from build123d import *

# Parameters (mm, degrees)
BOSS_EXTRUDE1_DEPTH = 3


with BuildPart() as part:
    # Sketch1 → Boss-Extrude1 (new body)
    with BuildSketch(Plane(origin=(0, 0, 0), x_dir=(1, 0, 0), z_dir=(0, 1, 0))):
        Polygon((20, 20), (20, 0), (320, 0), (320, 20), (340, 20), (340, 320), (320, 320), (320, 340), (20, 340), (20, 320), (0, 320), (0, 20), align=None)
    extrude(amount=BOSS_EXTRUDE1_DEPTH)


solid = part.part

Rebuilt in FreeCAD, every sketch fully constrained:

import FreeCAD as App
import Part
import Sketcher

doc = App.newDocument("Part")
params = doc.addObject("Spreadsheet::Sheet", "Params")
for row, (alias, value) in enumerate([
    ("sketch1_width", "300 mm"),
    ("sketch1_width2", "20 mm"),
    ("pad1_length", "3 mm"),
], start=1):
    params.set(f"A{row}", alias)
    params.set(f"B{row}", "=" + value)
    params.setAlias(f"B{row}", alias)

body = doc.addObject("PartDesign::Body", "Body")

sketch1 = body.newObject("Sketcher::SketchObject", "Sketch")
sketch1.AttachmentSupport = (doc.getObject("XZ_Plane"), [""])
sketch1.MapMode = "FlatFace"
sketch1.addGeometry([
    Part.LineSegment(App.Vector(20, -20, 0), App.Vector(20, 0, 0)),
    Part.LineSegment(App.Vector(20, 0, 0), App.Vector(320, 0, 0)),
    Part.LineSegment(App.Vector(320, 0, 0), App.Vector(320, -20, 0)),
    Part.LineSegment(App.Vector(320, -20, 0), App.Vector(340, -20, 0)),
    Part.LineSegment(App.Vector(340, -20, 0), App.Vector(340, -320, 0)),
    Part.LineSegment(App.Vector(340, -320, 0), App.Vector(320, -320, 0)),
    Part.LineSegment(App.Vector(320, -320, 0), App.Vector(320, -340, 0)),
    Part.LineSegment(App.Vector(320, -340, 0), App.Vector(20, -340, 0)),
    Part.LineSegment(App.Vector(20, -340, 0), App.Vector(20, -320, 0)),
    Part.LineSegment(App.Vector(20, -320, 0), App.Vector(0, -320, 0)),
    Part.LineSegment(App.Vector(0, -320, 0), App.Vector(0, -20, 0)),
    Part.LineSegment(App.Vector(0, -20, 0), App.Vector(20, -20, 0)),
], False)
sketch1.addConstraint([
    Sketcher.Constraint("Coincident", 0, 2, 1, 1),
    Sketcher.Constraint("Coincident", 1, 2, 2, 1),
    Sketcher.Constraint("Coincident", 2, 2, 3, 1),
    Sketcher.Constraint("Coincident", 3, 2, 4, 1),
    Sketcher.Constraint("Coincident", 4, 2, 5, 1),
    Sketcher.Constraint("Coincident", 5, 2, 6, 1),
    Sketcher.Constraint("Coincident", 6, 2, 7, 1),
    Sketcher.Constraint("Coincident", 7, 2, 8, 1),
    Sketcher.Constraint("Coincident", 8, 2, 9, 1),
    Sketcher.Constraint("Coincident", 9, 2, 10, 1),
    Sketcher.Constraint("Coincident", 10, 2, 11, 1),
    Sketcher.Constraint("Coincident", 11, 2, 0, 1),
    Sketcher.Constraint("Vertical", 0),
    Sketcher.Constraint("Horizontal", 1),
    Sketcher.Constraint("Vertical", 2),
    Sketcher.Constraint("Horizontal", 3),
    Sketcher.Constraint("Vertical", 4),
    Sketcher.Constraint("Horizontal", 5),
    Sketcher.Constraint("Vertical", 6),
    Sketcher.Constraint("Horizontal", 7),
    Sketcher.Constraint("Vertical", 8),
    Sketcher.Constraint("Horizontal", 9),
    Sketcher.Constraint("Vertical", 10),
    Sketcher.Constraint("Horizontal", 11),
    Sketcher.Constraint("PointOnObject", 0, 2, -1),
    Sketcher.Constraint("PointOnObject", 9, 2, -2),
    Sketcher.Constraint("Horizontal", 5, 2, 8, 2),
    Sketcher.Constraint("Horizontal", 3, 2, 10, 2),
    Sketcher.Constraint("Vertical", 2, 2, 5, 2),
    Sketcher.Constraint("Vertical", 0, 2, 7, 2),
    Sketcher.Constraint("Equal", 5, 9),
    Sketcher.Constraint("Equal", 11, 0),
    Sketcher.Constraint("Equal", 7, 4),
    Sketcher.Constraint("Equal", 2, 6),
    Sketcher.Constraint("DistanceX", 1, 1, 1, 2, 300.0),
    Sketcher.Constraint("DistanceX", 3, 1, 3, 2, 20.0),
])
sketch1.setExpression("Constraints[34]", "Params.sketch1_width")
sketch1.setExpression("Constraints[35]", "Params.sketch1_width2")
pad1 = body.newObject("PartDesign::Pad", "Pad")
pad1.Profile = sketch1
pad1.setExpression("Length", "Params.pad1_length")
pad1.Reversed = True

doc.recompute()
